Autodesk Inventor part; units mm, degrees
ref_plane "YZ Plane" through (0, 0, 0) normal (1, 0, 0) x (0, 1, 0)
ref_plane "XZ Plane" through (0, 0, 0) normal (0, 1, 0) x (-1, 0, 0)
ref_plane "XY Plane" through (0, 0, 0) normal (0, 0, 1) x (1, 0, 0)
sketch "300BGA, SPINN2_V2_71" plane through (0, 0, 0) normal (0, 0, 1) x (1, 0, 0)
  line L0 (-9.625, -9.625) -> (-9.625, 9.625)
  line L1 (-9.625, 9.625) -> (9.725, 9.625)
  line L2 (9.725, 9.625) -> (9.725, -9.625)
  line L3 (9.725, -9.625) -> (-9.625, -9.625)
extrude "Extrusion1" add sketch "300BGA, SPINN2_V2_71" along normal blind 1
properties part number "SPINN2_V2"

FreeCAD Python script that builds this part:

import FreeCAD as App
import Part
import Sketcher
from FreeCAD import Vector
Q = App.Units.Quantity

doc = App.newDocument("Part")
params = doc.addObject("Spreadsheet::Sheet", "Params")
for row, (alias, value) in enumerate([
    ("sketch1_width", "19.35 mm"),
    ("sketch1_height", "19.25 mm"),
    ("pad1_length", "1 mm"),
], start=1):
    params.set(f"A{row}", alias)
    params.set(f"B{row}", "=" + value)
    params.setAlias(f"B{row}", alias)

body = doc.addObject("PartDesign::Body", "Body")

# Sketch on XY plane
sketch1 = body.newObject("Sketcher::SketchObject", "Sketch")
sketch1.AttachmentSupport = (doc.getObject("XY_Plane"), [""])
sketch1.MapMode = "FlatFace"
sketch1.addGeometry([
    Part.LineSegment(Vector(-10, 10, 0), Vector(-10, -10, 0)),
    Part.LineSegment(Vector(-10, -10, 0), Vector(10, -10, 0)),
    Part.LineSegment(Vector(10, -10, 0), Vector(10, 10, 0)),
    Part.LineSegment(Vector(10, 10, 0), Vector(-10, 10, 0)),
], False)
sketch1.addConstraint([
    Sketcher.Constraint("Coincident", 0, 2, 1, 1),
    Sketcher.Constraint("Coincident", 1, 2, 2, 1),
    Sketcher.Constraint("Coincident", 2, 2, 3, 1),
    Sketcher.Constraint("Coincident", 3, 2, 0, 1),
    Sketcher.Constraint("Vertical", 0),
    Sketcher.Constraint("Horizontal", 1),
    Sketcher.Constraint("Vertical", 2),
    Sketcher.Constraint("Horizontal", 3),
    Sketcher.Constraint("DistanceX", 1, 1, 1, 2, Q("19.35 mm")),
    Sketcher.Constraint("DistanceY", 0, 2, 0, 1, Q("19.25 mm")),
    Sketcher.Constraint("DistanceX", 0, 2, -1, 1, Q("9.625 mm")),
    Sketcher.Constraint("DistanceY", 0, 2, -1, 1, Q("9.625 mm")),
])
sketch1.setExpression("Constraints[8]", "Params.sketch1_width")
sketch1.setExpression("Constraints[9]", "Params.sketch1_height")
pad1 = body.newObject("PartDesign::Pad", "Pad")
pad1.Profile = sketch1
pad1.setExpression("Length", "Params.pad1_length")

doc.recompute()
